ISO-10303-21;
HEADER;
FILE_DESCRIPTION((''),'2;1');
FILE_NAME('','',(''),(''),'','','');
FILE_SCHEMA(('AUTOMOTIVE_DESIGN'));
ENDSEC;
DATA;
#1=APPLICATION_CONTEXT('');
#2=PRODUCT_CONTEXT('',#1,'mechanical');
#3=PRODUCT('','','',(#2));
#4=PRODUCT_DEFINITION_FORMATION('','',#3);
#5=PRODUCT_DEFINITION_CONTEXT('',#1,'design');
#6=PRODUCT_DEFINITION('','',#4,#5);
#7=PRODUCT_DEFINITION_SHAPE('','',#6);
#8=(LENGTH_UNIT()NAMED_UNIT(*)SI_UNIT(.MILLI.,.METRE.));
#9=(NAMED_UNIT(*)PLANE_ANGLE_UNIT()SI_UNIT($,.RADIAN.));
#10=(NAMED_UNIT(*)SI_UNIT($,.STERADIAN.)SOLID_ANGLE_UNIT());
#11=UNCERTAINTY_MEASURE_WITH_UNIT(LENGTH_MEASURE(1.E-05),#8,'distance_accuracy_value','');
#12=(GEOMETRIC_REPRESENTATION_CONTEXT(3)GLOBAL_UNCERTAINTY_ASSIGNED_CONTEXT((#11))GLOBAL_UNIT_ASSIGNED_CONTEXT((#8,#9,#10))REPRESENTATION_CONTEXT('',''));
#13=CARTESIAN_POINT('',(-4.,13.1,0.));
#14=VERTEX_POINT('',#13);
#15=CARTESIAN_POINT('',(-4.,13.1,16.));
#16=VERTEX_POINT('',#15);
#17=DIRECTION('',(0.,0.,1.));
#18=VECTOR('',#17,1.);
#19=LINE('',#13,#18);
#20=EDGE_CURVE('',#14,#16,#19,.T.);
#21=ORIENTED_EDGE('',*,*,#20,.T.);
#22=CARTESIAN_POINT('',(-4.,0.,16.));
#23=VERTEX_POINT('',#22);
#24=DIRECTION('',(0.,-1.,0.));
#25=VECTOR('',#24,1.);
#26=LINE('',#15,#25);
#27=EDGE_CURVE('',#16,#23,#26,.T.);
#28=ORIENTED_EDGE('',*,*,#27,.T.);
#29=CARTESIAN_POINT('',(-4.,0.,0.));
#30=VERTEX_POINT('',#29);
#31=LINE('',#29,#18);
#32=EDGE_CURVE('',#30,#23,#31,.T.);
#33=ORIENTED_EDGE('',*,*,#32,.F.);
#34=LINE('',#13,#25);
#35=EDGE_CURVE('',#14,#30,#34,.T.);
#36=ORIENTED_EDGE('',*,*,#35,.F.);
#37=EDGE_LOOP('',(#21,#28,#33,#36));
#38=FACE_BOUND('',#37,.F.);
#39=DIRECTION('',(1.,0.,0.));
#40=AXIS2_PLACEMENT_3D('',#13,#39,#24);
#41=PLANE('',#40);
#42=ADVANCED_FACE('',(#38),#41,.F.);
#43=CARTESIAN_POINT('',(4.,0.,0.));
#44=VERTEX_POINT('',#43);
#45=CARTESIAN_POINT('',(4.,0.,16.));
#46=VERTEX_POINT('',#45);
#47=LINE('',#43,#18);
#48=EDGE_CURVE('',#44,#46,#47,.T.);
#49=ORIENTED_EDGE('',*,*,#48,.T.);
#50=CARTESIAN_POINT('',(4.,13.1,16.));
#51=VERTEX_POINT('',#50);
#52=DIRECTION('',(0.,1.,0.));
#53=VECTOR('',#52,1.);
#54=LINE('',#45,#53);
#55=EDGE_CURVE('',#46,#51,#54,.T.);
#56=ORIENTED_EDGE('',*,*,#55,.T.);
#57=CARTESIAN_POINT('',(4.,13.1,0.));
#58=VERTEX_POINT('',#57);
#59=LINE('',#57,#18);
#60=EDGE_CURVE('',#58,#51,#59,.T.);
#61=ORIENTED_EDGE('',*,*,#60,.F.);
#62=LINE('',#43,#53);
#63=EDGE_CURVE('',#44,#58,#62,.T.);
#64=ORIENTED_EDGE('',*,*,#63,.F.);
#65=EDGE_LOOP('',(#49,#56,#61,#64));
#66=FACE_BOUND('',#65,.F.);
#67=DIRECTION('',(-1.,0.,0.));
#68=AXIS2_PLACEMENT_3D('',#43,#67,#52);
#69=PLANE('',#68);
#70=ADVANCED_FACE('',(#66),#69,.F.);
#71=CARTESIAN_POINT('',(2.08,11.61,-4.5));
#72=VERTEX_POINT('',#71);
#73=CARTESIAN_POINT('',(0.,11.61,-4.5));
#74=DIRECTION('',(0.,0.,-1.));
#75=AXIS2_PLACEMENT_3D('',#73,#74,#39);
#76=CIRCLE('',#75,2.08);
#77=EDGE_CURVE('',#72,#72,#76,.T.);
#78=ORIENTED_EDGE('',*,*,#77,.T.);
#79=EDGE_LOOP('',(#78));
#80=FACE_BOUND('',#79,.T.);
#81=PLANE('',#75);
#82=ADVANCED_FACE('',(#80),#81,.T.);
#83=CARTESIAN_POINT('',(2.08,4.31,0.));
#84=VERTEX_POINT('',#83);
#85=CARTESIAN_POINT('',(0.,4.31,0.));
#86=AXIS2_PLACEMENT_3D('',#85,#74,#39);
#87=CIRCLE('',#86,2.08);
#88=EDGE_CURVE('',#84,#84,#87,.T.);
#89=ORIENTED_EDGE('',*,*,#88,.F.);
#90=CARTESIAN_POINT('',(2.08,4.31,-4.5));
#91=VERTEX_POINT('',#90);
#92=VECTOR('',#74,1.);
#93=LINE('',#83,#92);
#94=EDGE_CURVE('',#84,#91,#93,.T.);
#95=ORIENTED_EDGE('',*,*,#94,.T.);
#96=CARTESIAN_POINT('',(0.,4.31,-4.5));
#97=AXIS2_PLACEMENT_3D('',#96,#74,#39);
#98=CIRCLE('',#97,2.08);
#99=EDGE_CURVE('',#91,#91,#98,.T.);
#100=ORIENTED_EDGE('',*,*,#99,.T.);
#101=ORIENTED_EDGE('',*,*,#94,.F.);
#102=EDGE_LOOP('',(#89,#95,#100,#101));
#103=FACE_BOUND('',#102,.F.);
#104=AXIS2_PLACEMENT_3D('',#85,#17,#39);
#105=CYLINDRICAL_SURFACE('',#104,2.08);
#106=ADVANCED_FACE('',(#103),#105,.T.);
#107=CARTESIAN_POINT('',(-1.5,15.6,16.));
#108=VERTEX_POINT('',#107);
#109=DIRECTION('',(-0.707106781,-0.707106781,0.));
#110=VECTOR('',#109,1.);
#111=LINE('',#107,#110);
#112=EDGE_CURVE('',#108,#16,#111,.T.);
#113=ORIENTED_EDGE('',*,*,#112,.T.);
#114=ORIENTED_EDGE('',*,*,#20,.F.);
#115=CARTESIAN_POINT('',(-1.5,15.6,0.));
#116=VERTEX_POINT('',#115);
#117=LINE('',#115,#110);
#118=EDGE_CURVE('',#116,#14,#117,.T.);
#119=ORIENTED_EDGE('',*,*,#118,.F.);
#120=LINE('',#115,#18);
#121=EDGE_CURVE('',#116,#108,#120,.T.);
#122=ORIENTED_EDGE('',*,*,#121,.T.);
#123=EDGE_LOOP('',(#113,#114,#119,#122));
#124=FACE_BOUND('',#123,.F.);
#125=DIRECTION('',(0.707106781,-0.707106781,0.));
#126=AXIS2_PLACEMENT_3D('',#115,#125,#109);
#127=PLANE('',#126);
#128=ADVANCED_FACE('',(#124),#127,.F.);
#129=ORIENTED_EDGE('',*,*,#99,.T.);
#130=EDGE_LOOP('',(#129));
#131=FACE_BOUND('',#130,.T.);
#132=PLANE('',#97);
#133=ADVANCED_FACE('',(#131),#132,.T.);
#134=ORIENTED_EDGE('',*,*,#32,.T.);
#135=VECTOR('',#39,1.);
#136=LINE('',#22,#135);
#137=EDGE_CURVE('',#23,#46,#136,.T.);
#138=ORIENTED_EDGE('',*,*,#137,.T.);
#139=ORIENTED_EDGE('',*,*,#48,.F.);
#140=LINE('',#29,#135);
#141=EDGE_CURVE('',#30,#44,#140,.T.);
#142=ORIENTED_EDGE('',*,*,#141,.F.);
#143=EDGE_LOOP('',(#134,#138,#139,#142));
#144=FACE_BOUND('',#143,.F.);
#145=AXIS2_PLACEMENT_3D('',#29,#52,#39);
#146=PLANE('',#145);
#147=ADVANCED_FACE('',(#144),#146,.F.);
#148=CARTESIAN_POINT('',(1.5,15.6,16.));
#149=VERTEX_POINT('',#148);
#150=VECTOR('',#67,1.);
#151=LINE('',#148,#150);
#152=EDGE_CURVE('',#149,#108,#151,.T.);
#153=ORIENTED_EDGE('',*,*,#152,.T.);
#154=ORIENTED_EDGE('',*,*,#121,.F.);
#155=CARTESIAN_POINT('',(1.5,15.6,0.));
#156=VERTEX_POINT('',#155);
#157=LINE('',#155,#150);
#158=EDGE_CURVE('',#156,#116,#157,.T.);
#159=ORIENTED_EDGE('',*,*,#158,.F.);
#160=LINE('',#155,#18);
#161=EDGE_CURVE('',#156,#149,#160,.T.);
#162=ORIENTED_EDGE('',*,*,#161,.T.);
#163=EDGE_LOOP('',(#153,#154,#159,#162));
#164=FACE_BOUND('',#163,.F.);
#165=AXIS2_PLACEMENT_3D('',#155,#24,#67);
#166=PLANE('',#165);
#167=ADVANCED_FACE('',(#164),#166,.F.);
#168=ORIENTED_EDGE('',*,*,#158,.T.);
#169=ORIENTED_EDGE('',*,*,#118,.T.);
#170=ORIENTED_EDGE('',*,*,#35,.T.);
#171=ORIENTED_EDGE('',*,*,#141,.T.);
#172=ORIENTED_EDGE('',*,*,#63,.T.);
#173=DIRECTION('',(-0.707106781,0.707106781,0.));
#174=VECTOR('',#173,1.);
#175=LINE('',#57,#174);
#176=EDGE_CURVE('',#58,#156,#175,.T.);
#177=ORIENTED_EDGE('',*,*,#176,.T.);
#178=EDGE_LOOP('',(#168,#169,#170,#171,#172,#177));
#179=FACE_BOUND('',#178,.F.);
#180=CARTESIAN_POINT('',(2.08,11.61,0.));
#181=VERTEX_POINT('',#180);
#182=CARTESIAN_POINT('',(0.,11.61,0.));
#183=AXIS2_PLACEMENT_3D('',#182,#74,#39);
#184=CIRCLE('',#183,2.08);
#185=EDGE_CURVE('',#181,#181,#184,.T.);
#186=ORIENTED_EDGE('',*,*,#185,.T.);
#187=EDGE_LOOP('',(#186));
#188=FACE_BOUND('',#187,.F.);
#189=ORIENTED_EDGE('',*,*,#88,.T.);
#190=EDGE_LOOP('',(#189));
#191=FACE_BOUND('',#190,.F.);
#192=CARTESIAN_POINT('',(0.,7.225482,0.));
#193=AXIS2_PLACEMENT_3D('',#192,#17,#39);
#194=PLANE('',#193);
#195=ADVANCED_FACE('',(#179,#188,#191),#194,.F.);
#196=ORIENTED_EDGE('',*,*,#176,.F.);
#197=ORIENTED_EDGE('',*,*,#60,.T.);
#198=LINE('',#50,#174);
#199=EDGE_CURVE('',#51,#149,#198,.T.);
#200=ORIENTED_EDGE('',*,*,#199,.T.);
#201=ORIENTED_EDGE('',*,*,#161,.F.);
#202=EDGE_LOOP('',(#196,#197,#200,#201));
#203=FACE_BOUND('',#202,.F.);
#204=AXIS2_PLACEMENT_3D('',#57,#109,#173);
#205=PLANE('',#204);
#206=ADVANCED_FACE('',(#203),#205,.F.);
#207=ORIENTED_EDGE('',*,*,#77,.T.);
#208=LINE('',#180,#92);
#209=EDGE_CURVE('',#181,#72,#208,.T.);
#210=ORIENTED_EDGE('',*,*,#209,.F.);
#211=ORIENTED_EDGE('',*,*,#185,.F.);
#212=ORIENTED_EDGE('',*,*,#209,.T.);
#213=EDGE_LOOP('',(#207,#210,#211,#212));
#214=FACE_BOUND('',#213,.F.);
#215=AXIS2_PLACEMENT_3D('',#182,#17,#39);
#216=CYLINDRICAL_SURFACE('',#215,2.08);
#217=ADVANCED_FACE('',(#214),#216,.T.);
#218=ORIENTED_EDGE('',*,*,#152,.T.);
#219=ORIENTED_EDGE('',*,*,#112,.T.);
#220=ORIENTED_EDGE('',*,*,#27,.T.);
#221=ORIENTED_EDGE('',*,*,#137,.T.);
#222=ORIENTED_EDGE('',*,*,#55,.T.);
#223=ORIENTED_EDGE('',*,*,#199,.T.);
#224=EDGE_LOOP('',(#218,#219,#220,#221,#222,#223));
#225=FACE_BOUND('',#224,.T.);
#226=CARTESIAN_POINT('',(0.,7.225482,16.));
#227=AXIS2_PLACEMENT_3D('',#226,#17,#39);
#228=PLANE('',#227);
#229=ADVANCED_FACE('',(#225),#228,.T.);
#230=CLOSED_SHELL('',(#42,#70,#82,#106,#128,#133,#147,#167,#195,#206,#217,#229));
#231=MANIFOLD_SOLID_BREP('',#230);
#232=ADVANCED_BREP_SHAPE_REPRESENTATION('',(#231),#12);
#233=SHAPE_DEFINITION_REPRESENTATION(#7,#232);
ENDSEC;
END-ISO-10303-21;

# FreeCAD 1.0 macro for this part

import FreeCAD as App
import Part
import Sketcher
from FreeCAD import Vector
Q = App.Units.Quantity


def add_polygon(sketch, points):
    """Adds a closed chain of lines whose ends are joined by coincident constraints."""
    first, n = sketch.GeometryCount, len(points)
    for a, b in zip(points, points[1:] + points[:1]):
        sketch.addGeometry(Part.LineSegment(App.Vector(*a, 0), App.Vector(*b, 0)), False)
    for i in range(n):
        sketch.addConstraint(Sketcher.Constraint("Coincident", first + i, 2, first + (i + 1) % n, 1))

doc = App.newDocument("Part")
body = doc.addObject("PartDesign::Body", "Body")

sketch1 = body.newObject("Sketcher::SketchObject", "Sketch")
sketch1.AttachmentSupport = (doc.getObject("XY_Plane"), [""])
sketch1.MapMode = "FlatFace"
add_polygon(sketch1, [(-4, 13.1), (-4, 0), (4, 0), (4, 13.1), (1.5, 15.6), (-1.5, 15.6)])
sketch1.addConstraint([
    Sketcher.Constraint("Vertical", 0),
    Sketcher.Constraint("Horizontal", 1),
    Sketcher.Constraint("Vertical", 2),
    Sketcher.Constraint("Horizontal", 4),
    Sketcher.Constraint("Symmetric", 0, 2, 1, 2, -1, 1),
    Sketcher.Constraint("Perpendicular", 3, 5),
    Sketcher.Constraint("Horizontal", 2, 2, 5, 2),
    Sketcher.Constraint("Equal", 3, 5),
    Sketcher.Constraint("DistanceX", 1, 1, 1, 2, Q("8 mm")),
    Sketcher.Constraint("DistanceX", 4, 2, 4, 1, Q("3 mm")),
    Sketcher.Constraint("DistanceY", 0, 2, 0, 1, Q("13.1 mm")),
])
pad1 = body.newObject("PartDesign::Pad", "Pad")
pad1.Profile = sketch1
pad1.Length = 16

sketch2 = body.newObject("Sketcher::SketchObject", "Sketch001")
sketch2.AttachmentSupport = (doc.getObject("XY_Plane"), [""])
sketch2.MapMode = "FlatFace"
sketch2.addGeometry([
    Part.Circle(Vector(0, 4.3, 0), Vector(0, 0, 1), 2.1),
    Part.Circle(Vector(0, 11.6, 0), Vector(0, 0, 1), 2.1),
], False)
sketch2.addConstraint([
    Sketcher.Constraint("Equal", 0, 1),
    Sketcher.Constraint("PointOnObject", 0, 3, -2),
    Sketcher.Constraint("PointOnObject", 1, 3, -2),
    Sketcher.Constraint("Diameter", 0, Q("4.16 mm")),
    Sketcher.Constraint("DistanceY", 0, 3, 1, 3, Q("7.3 mm")),
    Sketcher.Constraint("DistanceY", -1, 1, 0, 3, Q("4.31 mm")),
])
pad2 = body.newObject("PartDesign::Pad", "Pad001")
pad2.Profile = sketch2
pad2.Length = 4.5
pad2.Reversed = True

doc.recompute()
